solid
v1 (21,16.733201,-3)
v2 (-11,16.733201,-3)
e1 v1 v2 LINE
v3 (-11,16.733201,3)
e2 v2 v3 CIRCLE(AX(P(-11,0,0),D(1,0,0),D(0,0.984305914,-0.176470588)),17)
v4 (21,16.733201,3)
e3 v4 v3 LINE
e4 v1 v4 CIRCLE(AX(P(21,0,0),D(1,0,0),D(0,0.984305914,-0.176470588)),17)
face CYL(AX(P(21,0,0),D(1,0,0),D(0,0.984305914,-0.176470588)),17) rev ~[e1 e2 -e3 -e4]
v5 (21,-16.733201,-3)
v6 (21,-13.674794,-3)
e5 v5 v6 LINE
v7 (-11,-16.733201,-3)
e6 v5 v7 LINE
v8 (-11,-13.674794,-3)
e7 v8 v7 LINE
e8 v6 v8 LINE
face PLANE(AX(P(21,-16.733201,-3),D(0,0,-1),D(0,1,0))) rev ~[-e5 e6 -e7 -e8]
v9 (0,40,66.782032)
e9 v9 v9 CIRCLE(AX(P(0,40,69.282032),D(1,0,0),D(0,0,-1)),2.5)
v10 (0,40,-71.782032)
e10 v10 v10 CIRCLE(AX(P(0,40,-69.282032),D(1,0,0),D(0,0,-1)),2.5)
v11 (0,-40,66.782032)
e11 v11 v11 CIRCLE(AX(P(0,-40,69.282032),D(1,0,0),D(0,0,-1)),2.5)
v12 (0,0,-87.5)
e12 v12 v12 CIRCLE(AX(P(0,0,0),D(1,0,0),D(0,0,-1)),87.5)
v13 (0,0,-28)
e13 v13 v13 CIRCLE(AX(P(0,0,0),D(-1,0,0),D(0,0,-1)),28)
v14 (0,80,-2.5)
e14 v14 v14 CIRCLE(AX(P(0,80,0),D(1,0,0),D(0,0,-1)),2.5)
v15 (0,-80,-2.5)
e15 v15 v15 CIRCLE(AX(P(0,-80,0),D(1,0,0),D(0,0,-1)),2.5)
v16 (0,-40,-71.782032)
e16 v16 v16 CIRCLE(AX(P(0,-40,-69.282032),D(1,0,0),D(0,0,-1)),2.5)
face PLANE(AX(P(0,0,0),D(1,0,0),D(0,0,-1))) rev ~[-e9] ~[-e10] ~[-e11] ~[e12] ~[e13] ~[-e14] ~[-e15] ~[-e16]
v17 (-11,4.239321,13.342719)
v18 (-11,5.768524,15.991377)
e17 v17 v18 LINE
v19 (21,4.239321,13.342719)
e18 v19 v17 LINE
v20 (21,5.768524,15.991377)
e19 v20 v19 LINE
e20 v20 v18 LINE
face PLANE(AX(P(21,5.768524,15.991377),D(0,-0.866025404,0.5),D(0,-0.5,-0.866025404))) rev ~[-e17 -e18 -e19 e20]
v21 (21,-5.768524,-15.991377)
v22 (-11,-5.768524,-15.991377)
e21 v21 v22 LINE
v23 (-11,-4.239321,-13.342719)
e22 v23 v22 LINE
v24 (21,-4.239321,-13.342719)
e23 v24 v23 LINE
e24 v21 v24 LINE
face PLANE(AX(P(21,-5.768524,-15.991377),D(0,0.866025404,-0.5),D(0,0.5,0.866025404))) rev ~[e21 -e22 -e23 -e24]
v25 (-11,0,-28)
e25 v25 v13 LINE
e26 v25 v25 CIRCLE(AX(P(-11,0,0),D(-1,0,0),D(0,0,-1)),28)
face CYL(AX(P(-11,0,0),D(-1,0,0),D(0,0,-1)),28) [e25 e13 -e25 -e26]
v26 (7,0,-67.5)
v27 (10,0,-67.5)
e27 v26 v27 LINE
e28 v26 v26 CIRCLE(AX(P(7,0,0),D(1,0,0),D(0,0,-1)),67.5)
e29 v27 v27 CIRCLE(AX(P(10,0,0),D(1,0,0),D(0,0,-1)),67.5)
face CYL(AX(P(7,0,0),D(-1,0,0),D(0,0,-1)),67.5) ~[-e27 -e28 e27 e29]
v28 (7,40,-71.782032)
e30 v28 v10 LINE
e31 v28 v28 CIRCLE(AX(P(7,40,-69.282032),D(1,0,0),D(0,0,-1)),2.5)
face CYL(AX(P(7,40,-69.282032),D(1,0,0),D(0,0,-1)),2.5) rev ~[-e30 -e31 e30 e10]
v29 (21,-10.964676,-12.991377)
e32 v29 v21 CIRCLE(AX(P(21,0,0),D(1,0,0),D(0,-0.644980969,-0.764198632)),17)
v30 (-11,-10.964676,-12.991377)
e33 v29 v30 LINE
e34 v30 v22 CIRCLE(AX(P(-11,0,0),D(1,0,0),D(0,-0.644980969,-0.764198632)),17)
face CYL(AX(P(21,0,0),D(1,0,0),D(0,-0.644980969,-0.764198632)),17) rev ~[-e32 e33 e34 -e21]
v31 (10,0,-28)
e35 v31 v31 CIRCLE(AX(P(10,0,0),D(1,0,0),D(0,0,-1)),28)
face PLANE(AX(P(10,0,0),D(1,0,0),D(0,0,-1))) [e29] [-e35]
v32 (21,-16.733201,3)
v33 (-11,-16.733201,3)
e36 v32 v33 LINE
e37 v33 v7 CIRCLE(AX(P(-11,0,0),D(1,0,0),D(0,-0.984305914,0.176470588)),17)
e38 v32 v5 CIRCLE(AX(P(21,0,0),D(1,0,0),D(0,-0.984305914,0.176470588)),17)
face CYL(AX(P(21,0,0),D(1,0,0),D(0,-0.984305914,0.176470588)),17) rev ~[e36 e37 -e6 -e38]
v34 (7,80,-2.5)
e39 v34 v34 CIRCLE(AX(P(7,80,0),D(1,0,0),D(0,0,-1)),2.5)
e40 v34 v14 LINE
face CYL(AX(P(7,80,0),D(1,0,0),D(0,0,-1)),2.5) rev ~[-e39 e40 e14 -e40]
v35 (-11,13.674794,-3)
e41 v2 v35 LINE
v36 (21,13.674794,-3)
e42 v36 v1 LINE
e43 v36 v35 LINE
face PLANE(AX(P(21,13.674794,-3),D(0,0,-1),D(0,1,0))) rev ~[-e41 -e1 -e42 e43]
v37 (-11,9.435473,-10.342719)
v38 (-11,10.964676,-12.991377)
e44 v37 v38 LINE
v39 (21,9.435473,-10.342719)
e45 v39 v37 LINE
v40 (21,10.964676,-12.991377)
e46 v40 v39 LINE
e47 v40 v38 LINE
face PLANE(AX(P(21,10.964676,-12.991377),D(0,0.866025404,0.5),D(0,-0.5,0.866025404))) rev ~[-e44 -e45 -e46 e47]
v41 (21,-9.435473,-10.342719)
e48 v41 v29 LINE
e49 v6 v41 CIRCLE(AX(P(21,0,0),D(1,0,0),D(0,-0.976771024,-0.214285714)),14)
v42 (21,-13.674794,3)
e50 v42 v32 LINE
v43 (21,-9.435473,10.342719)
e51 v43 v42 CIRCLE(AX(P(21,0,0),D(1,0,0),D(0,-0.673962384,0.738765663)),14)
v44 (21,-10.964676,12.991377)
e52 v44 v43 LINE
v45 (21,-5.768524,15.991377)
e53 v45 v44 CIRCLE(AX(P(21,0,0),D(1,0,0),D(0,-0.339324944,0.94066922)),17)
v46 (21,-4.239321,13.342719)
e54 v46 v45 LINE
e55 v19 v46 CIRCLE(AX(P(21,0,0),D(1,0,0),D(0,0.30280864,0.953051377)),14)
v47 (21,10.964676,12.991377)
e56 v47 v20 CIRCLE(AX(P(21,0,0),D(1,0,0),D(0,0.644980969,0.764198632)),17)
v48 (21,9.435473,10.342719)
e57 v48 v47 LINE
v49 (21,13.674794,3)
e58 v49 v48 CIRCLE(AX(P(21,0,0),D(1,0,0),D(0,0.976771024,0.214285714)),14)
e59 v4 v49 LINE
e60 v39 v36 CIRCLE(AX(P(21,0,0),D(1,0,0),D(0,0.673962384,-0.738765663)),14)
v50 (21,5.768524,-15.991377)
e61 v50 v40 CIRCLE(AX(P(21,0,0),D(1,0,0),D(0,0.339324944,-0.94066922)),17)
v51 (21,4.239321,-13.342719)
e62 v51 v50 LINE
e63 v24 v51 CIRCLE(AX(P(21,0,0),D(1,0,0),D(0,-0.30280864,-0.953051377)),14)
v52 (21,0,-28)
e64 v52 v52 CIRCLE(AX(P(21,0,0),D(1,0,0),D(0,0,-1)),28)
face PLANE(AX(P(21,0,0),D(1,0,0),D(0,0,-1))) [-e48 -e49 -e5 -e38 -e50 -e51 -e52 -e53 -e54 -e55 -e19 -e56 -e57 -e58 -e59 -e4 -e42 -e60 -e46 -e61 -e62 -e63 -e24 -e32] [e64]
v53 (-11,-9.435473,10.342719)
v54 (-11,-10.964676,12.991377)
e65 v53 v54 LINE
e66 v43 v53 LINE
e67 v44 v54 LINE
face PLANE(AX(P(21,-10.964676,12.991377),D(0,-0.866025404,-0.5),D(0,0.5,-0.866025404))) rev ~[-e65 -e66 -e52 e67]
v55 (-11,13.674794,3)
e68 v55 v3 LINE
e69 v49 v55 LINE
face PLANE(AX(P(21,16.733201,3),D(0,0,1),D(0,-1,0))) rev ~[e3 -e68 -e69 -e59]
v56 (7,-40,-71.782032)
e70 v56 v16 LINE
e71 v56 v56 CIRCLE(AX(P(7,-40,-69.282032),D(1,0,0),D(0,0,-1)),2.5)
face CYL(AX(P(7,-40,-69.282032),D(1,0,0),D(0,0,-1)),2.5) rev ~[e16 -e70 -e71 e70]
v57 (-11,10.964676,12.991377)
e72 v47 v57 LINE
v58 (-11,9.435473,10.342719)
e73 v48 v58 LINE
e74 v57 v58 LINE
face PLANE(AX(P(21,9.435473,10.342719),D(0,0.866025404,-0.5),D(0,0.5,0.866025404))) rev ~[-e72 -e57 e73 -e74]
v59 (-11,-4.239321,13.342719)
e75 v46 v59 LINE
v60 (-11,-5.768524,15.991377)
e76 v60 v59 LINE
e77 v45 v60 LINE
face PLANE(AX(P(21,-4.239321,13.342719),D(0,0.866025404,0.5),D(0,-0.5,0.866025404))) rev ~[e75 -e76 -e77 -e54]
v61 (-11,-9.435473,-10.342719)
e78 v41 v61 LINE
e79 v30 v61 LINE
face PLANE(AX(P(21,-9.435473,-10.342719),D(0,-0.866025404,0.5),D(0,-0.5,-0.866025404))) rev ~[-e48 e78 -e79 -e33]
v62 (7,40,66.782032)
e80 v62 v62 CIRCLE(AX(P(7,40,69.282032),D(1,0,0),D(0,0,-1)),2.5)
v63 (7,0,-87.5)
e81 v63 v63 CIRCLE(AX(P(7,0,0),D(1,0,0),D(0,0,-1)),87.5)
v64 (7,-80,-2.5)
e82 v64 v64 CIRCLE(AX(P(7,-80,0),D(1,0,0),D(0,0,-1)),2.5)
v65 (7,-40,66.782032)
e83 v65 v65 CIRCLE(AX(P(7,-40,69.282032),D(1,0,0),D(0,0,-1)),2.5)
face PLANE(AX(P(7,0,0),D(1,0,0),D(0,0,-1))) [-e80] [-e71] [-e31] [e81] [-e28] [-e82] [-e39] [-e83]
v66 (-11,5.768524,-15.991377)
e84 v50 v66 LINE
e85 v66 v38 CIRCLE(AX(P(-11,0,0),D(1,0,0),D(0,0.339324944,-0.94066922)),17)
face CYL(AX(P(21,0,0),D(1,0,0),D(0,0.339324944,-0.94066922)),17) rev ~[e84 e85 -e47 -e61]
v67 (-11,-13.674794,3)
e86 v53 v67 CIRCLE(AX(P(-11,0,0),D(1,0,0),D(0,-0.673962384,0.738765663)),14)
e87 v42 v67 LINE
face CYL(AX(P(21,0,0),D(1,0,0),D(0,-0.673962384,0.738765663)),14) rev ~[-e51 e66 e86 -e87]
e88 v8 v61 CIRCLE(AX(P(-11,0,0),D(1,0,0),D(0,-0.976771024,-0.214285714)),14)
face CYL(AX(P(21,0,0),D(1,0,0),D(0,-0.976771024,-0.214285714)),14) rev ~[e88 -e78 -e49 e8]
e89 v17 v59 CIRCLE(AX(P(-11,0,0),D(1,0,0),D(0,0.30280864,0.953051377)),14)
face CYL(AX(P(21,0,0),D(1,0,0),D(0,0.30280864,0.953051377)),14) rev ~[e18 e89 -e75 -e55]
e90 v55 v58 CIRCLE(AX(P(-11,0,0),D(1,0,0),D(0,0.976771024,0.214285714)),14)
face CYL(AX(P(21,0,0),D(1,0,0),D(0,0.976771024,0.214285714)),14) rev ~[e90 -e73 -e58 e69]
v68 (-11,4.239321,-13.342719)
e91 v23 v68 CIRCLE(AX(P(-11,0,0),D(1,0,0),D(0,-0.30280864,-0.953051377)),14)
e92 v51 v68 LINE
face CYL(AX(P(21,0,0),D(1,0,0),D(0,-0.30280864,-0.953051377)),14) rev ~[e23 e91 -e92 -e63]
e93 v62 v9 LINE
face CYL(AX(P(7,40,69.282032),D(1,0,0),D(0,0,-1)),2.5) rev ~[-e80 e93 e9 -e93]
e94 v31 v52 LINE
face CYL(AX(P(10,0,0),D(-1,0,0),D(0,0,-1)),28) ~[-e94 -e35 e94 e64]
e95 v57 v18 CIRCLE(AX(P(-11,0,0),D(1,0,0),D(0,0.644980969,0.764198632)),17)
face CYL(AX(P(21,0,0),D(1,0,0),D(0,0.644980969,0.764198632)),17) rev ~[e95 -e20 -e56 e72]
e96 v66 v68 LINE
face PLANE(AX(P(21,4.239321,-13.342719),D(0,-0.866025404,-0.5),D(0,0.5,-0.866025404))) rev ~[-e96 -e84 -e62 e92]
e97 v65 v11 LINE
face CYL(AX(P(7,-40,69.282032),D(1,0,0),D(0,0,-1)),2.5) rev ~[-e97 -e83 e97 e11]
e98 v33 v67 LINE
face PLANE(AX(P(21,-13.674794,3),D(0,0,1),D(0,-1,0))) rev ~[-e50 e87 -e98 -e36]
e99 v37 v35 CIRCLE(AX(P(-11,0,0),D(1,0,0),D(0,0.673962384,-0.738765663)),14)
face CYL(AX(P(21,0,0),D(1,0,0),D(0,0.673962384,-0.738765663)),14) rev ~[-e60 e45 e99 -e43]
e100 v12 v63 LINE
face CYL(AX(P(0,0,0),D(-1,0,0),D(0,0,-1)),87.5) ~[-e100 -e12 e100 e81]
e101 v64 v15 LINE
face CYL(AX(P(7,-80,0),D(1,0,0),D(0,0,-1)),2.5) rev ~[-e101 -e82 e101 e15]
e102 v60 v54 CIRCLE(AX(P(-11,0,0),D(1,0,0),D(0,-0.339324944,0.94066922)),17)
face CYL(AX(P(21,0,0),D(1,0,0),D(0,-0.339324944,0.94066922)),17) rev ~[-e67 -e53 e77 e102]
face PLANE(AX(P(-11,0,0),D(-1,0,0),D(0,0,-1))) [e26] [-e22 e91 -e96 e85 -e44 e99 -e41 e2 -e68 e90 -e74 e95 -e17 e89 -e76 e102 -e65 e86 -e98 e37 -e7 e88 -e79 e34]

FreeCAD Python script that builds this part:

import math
import FreeCAD as App
import Part
import Sketcher
from FreeCAD import Vector
Q = App.Units.Quantity

doc = App.newDocument("Part")
params = doc.addObject("Spreadsheet::Sheet", "Params")
for row, (alias, value) in enumerate([
    ("sketch1_diameter", "175 mm"),
    ("pad1_length", "7 mm"),
    ("sketch2_diameter", "135 mm"),
    ("pad2_length", "3 mm"),
    ("sketch3_diameter", "5 mm"),
    ("sketch4_diameter", "56 mm"),
    ("pad3_length", "11 mm"),
    ("sketch5_diameter", "56 mm"),
    ("pad4_length", "11 mm"),
    ("sketch6_radius", "14 mm"),
    ("sketch6_radius2", "17 mm"),
], start=1):
    params.set(f"A{row}", alias)
    params.set(f"B{row}", "=" + value)
    params.setAlias(f"B{row}", alias)

body = doc.addObject("PartDesign::Body", "Body")

# Sketch on YZ plane
sketch1 = body.newObject("Sketcher::SketchObject", "Sketch")
sketch1.AttachmentSupport = (doc.getObject("YZ_Plane"), [""])
sketch1.MapMode = "FlatFace"
sketch1.addGeometry(Part.Circle(Vector(0, 0, 0), Vector(0, 0, 1), 87.5), False)
sketch1.addConstraint(Sketcher.Constraint("Coincident", 0, 3, -1, 1))
sketch1.addConstraint(Sketcher.Constraint("Diameter", 0, Q("175 mm")))
sketch1.setExpression("Constraints[1]", "Params.sketch1_diameter")
pad1 = body.newObject("PartDesign::Pad", "Pad")
pad1.Profile = sketch1
pad1.setExpression("Length", "Params.pad1_length")

# Sketch on YZ plane
sketch2 = body.newObject("Sketcher::SketchObject", "Sketch001")
sketch2.AttachmentSupport = (doc.getObject("YZ_Plane"), [""])
sketch2.MapMode = "FlatFace"
sketch2.AttachmentOffset = App.Placement(Vector(0, 0, 7), App.Rotation())
sketch2.addGeometry(Part.Circle(Vector(0, 0, 0), Vector(0, 0, 1), 67.5), False)
sketch2.addConstraint(Sketcher.Constraint("Coincident", 0, 3, -1, 1))
sketch2.addConstraint(Sketcher.Constraint("Diameter", 0, Q("135 mm")))
sketch2.setExpression("Constraints[1]", "Params.sketch2_diameter")
pad2 = body.newObject("PartDesign::Pad", "Pad001")
pad2.Profile = sketch2
pad2.setExpression("Length", "Params.pad2_length")

# Sketch on YZ plane
sketch3 = body.newObject("Sketcher::SketchObject", "Sketch002")
sketch3.AttachmentSupport = (doc.getObject("YZ_Plane"), [""])
sketch3.MapMode = "FlatFace"
sketch3.AttachmentOffset = App.Placement(Vector(0, 0, 7), App.Rotation())
sketch3.addGeometry(Part.Circle(Vector(-80, 0, 0), Vector(0, 0, 1), 2.5), False)
sketch3.addGeometry(Part.Circle(Vector(-40, 69.282032, 0), Vector(0, 0, 1), 2.5), False)
sketch3.addGeometry(Part.Circle(Vector(40, 69.282032, 0), Vector(0, 0, 1), 2.5), False)
sketch3.addGeometry(Part.Circle(Vector(80, 0, 0), Vector(0, 0, 1), 2.5), False)
sketch3.addGeometry(Part.Circle(Vector(40, -69.282032, 0), Vector(0, 0, 1), 2.5), False)
sketch3.addGeometry(Part.Circle(Vector(-40, -69.282032, 0), Vector(0, 0, 1), 2.5), False)
sketch3.addConstraint(Sketcher.Constraint("Equal", 0, 1))
sketch3.addConstraint(Sketcher.Constraint("Equal", 1, 2))
sketch3.addConstraint(Sketcher.Constraint("Equal", 2, 3))
sketch3.addConstraint(Sketcher.Constraint("Equal", 3, 4))
sketch3.addConstraint(Sketcher.Constraint("Equal", 4, 5))
sketch3.addConstraint(Sketcher.Constraint("Symmetric", 0, 3, 3, 3, -1, 1))
sketch3.addConstraint(Sketcher.Constraint("Symmetric", 1, 3, 4, 3, -1, 1))
sketch3.addConstraint(Sketcher.Constraint("Symmetric", 2, 3, 5, 3, -1, 1))
sketch3.addConstraint(Sketcher.Constraint("Symmetric", 1, 3, 2, 3, -2))
sketch3.addConstraint(Sketcher.Constraint("PointOnObject", 0, 3, -1))
sketch3.addConstraint(Sketcher.Constraint("Diameter", 0, Q("5 mm")))
sketch3.addConstraint(Sketcher.Constraint("DistanceX", 0, 3, -1, 1, Q("80 mm")))
sketch3.addConstraint(Sketcher.Constraint("DistanceX", 1, 3, -1, 1, Q("40 mm")))
sketch3.addConstraint(Sketcher.Constraint("DistanceY", -1, 1, 1, 3, Q("69.282032 mm")))
sketch3.setExpression("Constraints[10]", "Params.sketch3_diameter")
pocket1 = body.newObject("PartDesign::Pocket", "Pocket")
pocket1.Profile = sketch3
pocket1.Type = "ThroughAll"

# Sketch on YZ plane
sketch4 = body.newObject("Sketcher::SketchObject", "Sketch003")
sketch4.AttachmentSupport = (doc.getObject("YZ_Plane"), [""])
sketch4.MapMode = "FlatFace"
sketch4.AttachmentOffset = App.Placement(Vector(0, 0, 10), App.Rotation())
sketch4.addGeometry(Part.Circle(Vector(0, 0, 0), Vector(0, 0, 1), 28), False)
sketch4.addConstraint(Sketcher.Constraint("Coincident", 0, 3, -1, 1))
sketch4.addConstraint(Sketcher.Constraint("Diameter", 0, Q("56 mm")))
sketch4.setExpression("Constraints[1]", "Params.sketch4_diameter")
pad3 = body.newObject("PartDesign::Pad", "Pad002")
pad3.Profile = sketch4
pad3.setExpression("Length", "Params.pad3_length")

# Sketch on YZ plane
sketch5 = body.newObject("Sketcher::SketchObject", "Sketch004")
sketch5.AttachmentSupport = (doc.getObject("YZ_Plane"), [""])
sketch5.MapMode = "FlatFace"
sketch5.AttachmentOffset = App.Placement(Vector(0, 0, -11), App.Rotation())
sketch5.addGeometry(Part.Circle(Vector(0, 0, 0), Vector(0, 0, 1), 28), False)
sketch5.addConstraint(Sketcher.Constraint("Coincident", 0, 3, -1, 1))
sketch5.addConstraint(Sketcher.Constraint("Diameter", 0, Q("56 mm")))
sketch5.setExpression("Constraints[1]", "Params.sketch5_diameter")
pad4 = body.newObject("PartDesign::Pad", "Pad003")
pad4.Profile = sketch5
pad4.setExpression("Length", "Params.pad4_length")

# Sketch on YZ plane
sketch6 = body.newObject("Sketcher::SketchObject", "Sketch005")
sketch6.AttachmentSupport = (doc.getObject("YZ_Plane"), [""])
sketch6.MapMode = "FlatFace"
sketch6.AttachmentOffset = App.Placement(Vector(0, 0, 21), App.Rotation())
sketch6.addGeometry(Part.LineSegment(Vector(16.733201, 3, 0), Vector(13.674794, 3, 0)), False)
sketch6.addGeometry(Part.ArcOfCircle(Part.Circle(Vector(0, 0, 0), Vector(0, 0, 1), 14), math.radians(12.373625), math.radians(47.626375)), False)
sketch6.addGeometry(Part.LineSegment(Vector(9.435473, 10.342719, 0), Vector(10.964676, 12.991377, 0)), False)
sketch6.addGeometry(Part.ArcOfCircle(Part.Circle(Vector(0, 0, 0), Vector(0, 0, 1), 17), math.radians(49.835751), math.radians(70.164249)), False)
sketch6.addGeometry(Part.LineSegment(Vector(5.768524, 15.991377, 0), Vector(4.239321, 13.342719, 0)), False)
sketch6.addGeometry(Part.ArcOfCircle(Part.Circle(Vector(0, 0, 0), Vector(0, 0, 1), 14), math.radians(72.373625), math.radians(107.626375)), False)
sketch6.addGeometry(Part.LineSegment(Vector(-4.239321, 13.342719, 0), Vector(-5.768524, 15.991377, 0)), False)
sketch6.addGeometry(Part.ArcOfCircle(Part.Circle(Vector(0, 0, 0), Vector(0, 0, 1), 17), math.radians(109.835751), math.radians(130.164249)), False)
sketch6.addGeometry(Part.LineSegment(Vector(-10.964676, 12.991377, 0), Vector(-9.435473, 10.342719, 0)), False)
sketch6.addGeometry(Part.ArcOfCircle(Part.Circle(Vector(0, 0, 0), Vector(0, 0, 1), 14), math.radians(132.373625), math.radians(167.626375)), False)
sketch6.addGeometry(Part.LineSegment(Vector(-13.674794, 3, 0), Vector(-16.733201, 3, 0)), False)
sketch6.addGeometry(Part.ArcOfCircle(Part.Circle(Vector(0, 0, 0), Vector(0, 0, 1), 17), math.radians(169.835751), math.radians(190.164249)), False)
sketch6.addGeometry(Part.LineSegment(Vector(-16.733201, -3, 0), Vector(-13.674794, -3, 0)), False)
sketch6.addGeometry(Part.ArcOfCircle(Part.Circle(Vector(0, 0, 0), Vector(0, 0, 1), 14), math.radians(-167.626375), math.radians(-132.373625)), False)
sketch6.addGeometry(Part.LineSegment(Vector(-9.435473, -10.342719, 0), Vector(-10.964676, -12.991377, 0)), False)
sketch6.addGeometry(Part.ArcOfCircle(Part.Circle(Vector(0, 0, 0), Vector(0, 0, 1), 17), math.radians(-130.164249), math.radians(-109.835751)), False)
sketch6.addGeometry(Part.LineSegment(Vector(-5.768524, -15.991377, 0), Vector(-4.239321, -13.342719, 0)), False)
sketch6.addGeometry(Part.ArcOfCircle(Part.Circle(Vector(0, 0, 0), Vector(0, 0, 1), 14), math.radians(-107.626375), math.radians(-72.373625)), False)
sketch6.addGeometry(Part.LineSegment(Vector(4.239321, -13.342719, 0), Vector(5.768524, -15.991377, 0)), False)
sketch6.addGeometry(Part.ArcOfCircle(Part.Circle(Vector(0, 0, 0), Vector(0, 0, 1), 17), math.radians(-70.164249), math.radians(-49.835751)), False)
sketch6.addGeometry(Part.LineSegment(Vector(10.964676, -12.991377, 0), Vector(9.435473, -10.342719, 0)), False)
sketch6.addGeometry(Part.ArcOfCircle(Part.Circle(Vector(0, 0, 0), Vector(0, 0, 1), 14), math.radians(-47.626375), math.radians(-12.373625)), False)
sketch6.addGeometry(Part.LineSegment(Vector(13.674794, -3, 0), Vector(16.733201, -3, 0)), False)
sketch6.addGeometry(Part.ArcOfCircle(Part.Circle(Vector(0, 0, 0), Vector(0, 0, 1), 17), math.radians(-10.164249), math.radians(10.164249)), False)
sketch6.addConstraint(Sketcher.Constraint("Coincident", 0, 2, 1, 1))
sketch6.addConstraint(Sketcher.Constraint("Coincident", 1, 2, 2, 1))
sketch6.addConstraint(Sketcher.Constraint("Coincident", 2, 2, 3, 1))
sketch6.addConstraint(Sketcher.Constraint("Coincident", 3, 2, 4, 1))
sketch6.addConstraint(Sketcher.Constraint("Coincident", 4, 2, 5, 1))
sketch6.addConstraint(Sketcher.Constraint("Coincident", 5, 2, 6, 1))
sketch6.addConstraint(Sketcher.Constraint("Coincident", 6, 2, 7, 1))
sketch6.addConstraint(Sketcher.Constraint("Coincident", 7, 2, 8, 1))
sketch6.addConstraint(Sketcher.Constraint("Coincident", 8, 2, 9, 1))
sketch6.addConstraint(Sketcher.Constraint("Coincident", 9, 2, 10, 1))
sketch6.addConstraint(Sketcher.Constraint("Coincident", 10, 2, 11, 1))
sketch6.addConstraint(Sketcher.Constraint("Coincident", 11, 2, 12, 1))
sketch6.addConstraint(Sketcher.Constraint("Coincident", 12, 2, 13, 1))
sketch6.addConstraint(Sketcher.Constraint("Coincident", 13, 2, 14, 1))
sketch6.addConstraint(Sketcher.Constraint("Coincident", 14, 2, 15, 1))
sketch6.addConstraint(Sketcher.Constraint("Coincident", 15, 2, 16, 1))
sketch6.addConstraint(Sketcher.Constraint("Coincident", 16, 2, 17, 1))
sketch6.addConstraint(Sketcher.Constraint("Coincident", 17, 2, 18, 1))
sketch6.addConstraint(Sketcher.Constraint("Coincident", 18, 2, 19, 1))
sketch6.addConstraint(Sketcher.Constraint("Coincident", 19, 2, 20, 1))
sketch6.addConstraint(Sketcher.Constraint("Coincident", 20, 2, 21, 1))
sketch6.addConstraint(Sketcher.Constraint("Coincident", 21, 2, 22, 1))
sketch6.addConstraint(Sketcher.Constraint("Coincident", 22, 2, 23, 1))
sketch6.addConstraint(Sketcher.Constraint("Coincident", 23, 2, 0, 1))
sketch6.addConstraint(Sketcher.Constraint("Horizontal", 0))
sketch6.addConstraint(Sketcher.Constraint("Horizontal", 10))
sketch6.addConstraint(Sketcher.Constraint("Horizontal", 12))
sketch6.addConstraint(Sketcher.Constraint("Horizontal", 22))
sketch6.addConstraint(Sketcher.Constraint("Coincident", 1, 3, -1, 1))
sketch6.addConstraint(Sketcher.Constraint("Coincident", 3, 3, -1, 1))
sketch6.addConstraint(Sketcher.Constraint("Coincident", 5, 3, -1, 1))
sketch6.addConstraint(Sketcher.Constraint("Coincident", 7, 3, -1, 1))
sketch6.addConstraint(Sketcher.Constraint("Coincident", 9, 3, -1, 1))
sketch6.addConstraint(Sketcher.Constraint("Coincident", 11, 3, -1, 1))
sketch6.addConstraint(Sketcher.Constraint("Coincident", 13, 3, -1, 1))
sketch6.addConstraint(Sketcher.Constraint("Coincident", 15, 3, -1, 1))
sketch6.addConstraint(Sketcher.Constraint("Coincident", 17, 3, -1, 1))
sketch6.addConstraint(Sketcher.Constraint("Coincident", 19, 3, -1, 1))
sketch6.addConstraint(Sketcher.Constraint("Coincident", 21, 3, -1, 1))
sketch6.addConstraint(Sketcher.Constraint("Coincident", 23, 3, -1, 1))
sketch6.addConstraint(Sketcher.Constraint("Equal", 1, 5))
sketch6.addConstraint(Sketcher.Constraint("Equal", 3, 7))
sketch6.addConstraint(Sketcher.Constraint("Equal", 5, 9))
sketch6.addConstraint(Sketcher.Constraint("Equal", 7, 11))
sketch6.addConstraint(Sketcher.Constraint("Equal", 9, 13))
sketch6.addConstraint(Sketcher.Constraint("Equal", 11, 15))
sketch6.addConstraint(Sketcher.Constraint("Equal", 13, 17))
sketch6.addConstraint(Sketcher.Constraint("Equal", 15, 19))
sketch6.addConstraint(Sketcher.Constraint("Equal", 17, 21))
sketch6.addConstraint(Sketcher.Constraint("Equal", 19, 23))
sketch6.addConstraint(Sketcher.Constraint("Parallel", 2, 4))
sketch6.addConstraint(Sketcher.Constraint("Parallel", 6, 8))
sketch6.addConstraint(Sketcher.Constraint("Parallel", 4, 14))
sketch6.addConstraint(Sketcher.Constraint("Parallel", 14, 16))
sketch6.addConstraint(Sketcher.Constraint("Parallel", 8, 18))
sketch6.addConstraint(Sketcher.Constraint("Parallel", 18, 20))
sketch6.addConstraint(Sketcher.Constraint("Horizontal", 4, 2, 5, 2))
sketch6.addConstraint(Sketcher.Constraint("Horizontal", 3, 2, 6, 2))
sketch6.addConstraint(Sketcher.Constraint("Horizontal", 2, 2, 7, 2))
sketch6.addConstraint(Sketcher.Constraint("Horizontal", 0, 2, 9, 2))
sketch6.addConstraint(Sketcher.Constraint("Horizontal", 16, 2, 17, 2))
sketch6.addConstraint(Sketcher.Constraint("Horizontal", 14, 2, 19, 2))
sketch6.addConstraint(Sketcher.Constraint("Horizontal", 12, 2, 21, 2))
sketch6.addConstraint(Sketcher.Constraint("Vertical", 10, 2, 11, 2))
sketch6.addConstraint(Sketcher.Constraint("Vertical", 8, 2, 13, 2))
sketch6.addConstraint(Sketcher.Constraint("Vertical", 6, 2, 15, 2))
sketch6.addConstraint(Sketcher.Constraint("Equal", 2, 4))
sketch6.addConstraint(Sketcher.Constraint("Radius", 1, Q("14 mm")))
sketch6.addConstraint(Sketcher.Constraint("Radius", 3, Q("17 mm")))
sketch6.addConstraint(Sketcher.Constraint("Angle", 2, Q("60 deg")))
sketch6.addConstraint(Sketcher.Constraint("DistanceY", -1, 1, 0, 2, Q("3 mm")))
sketch6.addConstraint(Sketcher.Constraint("DistanceY", 2, 2, 3, 2, Q("3 mm")))
sketch6.setExpression("Constraints[67]", "Params.sketch6_radius")
sketch6.setExpression("Constraints[68]", "Params.sketch6_radius2")
pocket2 = body.newObject("PartDesign::Pocket", "Pocket001")
pocket2.Profile = sketch6
pocket2.Type = "ThroughAll"

doc.recompute()
